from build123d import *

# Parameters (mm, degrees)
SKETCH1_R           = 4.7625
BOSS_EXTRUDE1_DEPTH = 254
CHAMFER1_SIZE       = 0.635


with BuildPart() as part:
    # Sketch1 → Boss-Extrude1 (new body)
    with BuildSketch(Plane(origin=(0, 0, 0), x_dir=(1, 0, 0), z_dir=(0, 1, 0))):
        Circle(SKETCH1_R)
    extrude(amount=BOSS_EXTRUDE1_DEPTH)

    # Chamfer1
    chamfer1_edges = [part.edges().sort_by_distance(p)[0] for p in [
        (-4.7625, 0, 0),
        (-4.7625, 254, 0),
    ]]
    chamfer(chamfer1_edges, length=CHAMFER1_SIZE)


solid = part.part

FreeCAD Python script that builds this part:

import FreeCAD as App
import Part
import Sketcher

V = App.Vector
Q = App.Units.Quantity


def edges_at(feature, points):
    """Names of the edges that pass closest to the given points."""
    edges = feature.Shape.Edges
    near = lambda p: min(range(len(edges)), key=lambda i: edges[i].distToShape(Part.Vertex(*p))[0])
    return sorted({f"Edge{near(p) + 1}" for p in points})

doc = App.newDocument("Part")
params = doc.addObject("Spreadsheet::Sheet", "Params")
for row, (alias, value) in enumerate([
    ("sketch1_diameter", "0.375 in"),
    ("pad1_length", "10 in"),
    ("chamfer_size", "0.025 in"),
], start=1):
    params.set(f"A{row}", alias)
    params.set(f"B{row}", "=" + value)
    params.setAlias(f"B{row}", alias)

body = doc.addObject("PartDesign::Body", "Body")

# Sketch on XZ plane
sketch1 = body.newObject("Sketcher::SketchObject", "Sketch")
sketch1.AttachmentSupport = (doc.getObject("XZ_Plane"), [""])
sketch1.MapMode = "FlatFace"
sketch1.addGeometry(Part.Circle(V(0, 0, 0), V(0, 0, 1), 4.7625), False)
sketch1.addConstraint([
    Sketcher.Constraint("Coincident", 0, 3, -1, 1),
    Sketcher.Constraint("Diameter", 0, Q("0.375 in")),
])
sketch1.setExpression("Constraints[1]", "Params.sketch1_diameter")
pad1 = body.newObject("PartDesign::Pad", "Pad")
pad1.Profile = sketch1
pad1.setExpression("Length", "Params.pad1_length")
pad1.Reversed = True
doc.recompute()

chamfer = body.newObject("PartDesign::Chamfer", "Chamfer")
chamfer.Base = (pad1, edges_at(pad1, [(-4.763, 0, 0), (-4.763, 254, 0)]))
chamfer.setExpression("Size", "Params.chamfer_size")

doc.recompute()
